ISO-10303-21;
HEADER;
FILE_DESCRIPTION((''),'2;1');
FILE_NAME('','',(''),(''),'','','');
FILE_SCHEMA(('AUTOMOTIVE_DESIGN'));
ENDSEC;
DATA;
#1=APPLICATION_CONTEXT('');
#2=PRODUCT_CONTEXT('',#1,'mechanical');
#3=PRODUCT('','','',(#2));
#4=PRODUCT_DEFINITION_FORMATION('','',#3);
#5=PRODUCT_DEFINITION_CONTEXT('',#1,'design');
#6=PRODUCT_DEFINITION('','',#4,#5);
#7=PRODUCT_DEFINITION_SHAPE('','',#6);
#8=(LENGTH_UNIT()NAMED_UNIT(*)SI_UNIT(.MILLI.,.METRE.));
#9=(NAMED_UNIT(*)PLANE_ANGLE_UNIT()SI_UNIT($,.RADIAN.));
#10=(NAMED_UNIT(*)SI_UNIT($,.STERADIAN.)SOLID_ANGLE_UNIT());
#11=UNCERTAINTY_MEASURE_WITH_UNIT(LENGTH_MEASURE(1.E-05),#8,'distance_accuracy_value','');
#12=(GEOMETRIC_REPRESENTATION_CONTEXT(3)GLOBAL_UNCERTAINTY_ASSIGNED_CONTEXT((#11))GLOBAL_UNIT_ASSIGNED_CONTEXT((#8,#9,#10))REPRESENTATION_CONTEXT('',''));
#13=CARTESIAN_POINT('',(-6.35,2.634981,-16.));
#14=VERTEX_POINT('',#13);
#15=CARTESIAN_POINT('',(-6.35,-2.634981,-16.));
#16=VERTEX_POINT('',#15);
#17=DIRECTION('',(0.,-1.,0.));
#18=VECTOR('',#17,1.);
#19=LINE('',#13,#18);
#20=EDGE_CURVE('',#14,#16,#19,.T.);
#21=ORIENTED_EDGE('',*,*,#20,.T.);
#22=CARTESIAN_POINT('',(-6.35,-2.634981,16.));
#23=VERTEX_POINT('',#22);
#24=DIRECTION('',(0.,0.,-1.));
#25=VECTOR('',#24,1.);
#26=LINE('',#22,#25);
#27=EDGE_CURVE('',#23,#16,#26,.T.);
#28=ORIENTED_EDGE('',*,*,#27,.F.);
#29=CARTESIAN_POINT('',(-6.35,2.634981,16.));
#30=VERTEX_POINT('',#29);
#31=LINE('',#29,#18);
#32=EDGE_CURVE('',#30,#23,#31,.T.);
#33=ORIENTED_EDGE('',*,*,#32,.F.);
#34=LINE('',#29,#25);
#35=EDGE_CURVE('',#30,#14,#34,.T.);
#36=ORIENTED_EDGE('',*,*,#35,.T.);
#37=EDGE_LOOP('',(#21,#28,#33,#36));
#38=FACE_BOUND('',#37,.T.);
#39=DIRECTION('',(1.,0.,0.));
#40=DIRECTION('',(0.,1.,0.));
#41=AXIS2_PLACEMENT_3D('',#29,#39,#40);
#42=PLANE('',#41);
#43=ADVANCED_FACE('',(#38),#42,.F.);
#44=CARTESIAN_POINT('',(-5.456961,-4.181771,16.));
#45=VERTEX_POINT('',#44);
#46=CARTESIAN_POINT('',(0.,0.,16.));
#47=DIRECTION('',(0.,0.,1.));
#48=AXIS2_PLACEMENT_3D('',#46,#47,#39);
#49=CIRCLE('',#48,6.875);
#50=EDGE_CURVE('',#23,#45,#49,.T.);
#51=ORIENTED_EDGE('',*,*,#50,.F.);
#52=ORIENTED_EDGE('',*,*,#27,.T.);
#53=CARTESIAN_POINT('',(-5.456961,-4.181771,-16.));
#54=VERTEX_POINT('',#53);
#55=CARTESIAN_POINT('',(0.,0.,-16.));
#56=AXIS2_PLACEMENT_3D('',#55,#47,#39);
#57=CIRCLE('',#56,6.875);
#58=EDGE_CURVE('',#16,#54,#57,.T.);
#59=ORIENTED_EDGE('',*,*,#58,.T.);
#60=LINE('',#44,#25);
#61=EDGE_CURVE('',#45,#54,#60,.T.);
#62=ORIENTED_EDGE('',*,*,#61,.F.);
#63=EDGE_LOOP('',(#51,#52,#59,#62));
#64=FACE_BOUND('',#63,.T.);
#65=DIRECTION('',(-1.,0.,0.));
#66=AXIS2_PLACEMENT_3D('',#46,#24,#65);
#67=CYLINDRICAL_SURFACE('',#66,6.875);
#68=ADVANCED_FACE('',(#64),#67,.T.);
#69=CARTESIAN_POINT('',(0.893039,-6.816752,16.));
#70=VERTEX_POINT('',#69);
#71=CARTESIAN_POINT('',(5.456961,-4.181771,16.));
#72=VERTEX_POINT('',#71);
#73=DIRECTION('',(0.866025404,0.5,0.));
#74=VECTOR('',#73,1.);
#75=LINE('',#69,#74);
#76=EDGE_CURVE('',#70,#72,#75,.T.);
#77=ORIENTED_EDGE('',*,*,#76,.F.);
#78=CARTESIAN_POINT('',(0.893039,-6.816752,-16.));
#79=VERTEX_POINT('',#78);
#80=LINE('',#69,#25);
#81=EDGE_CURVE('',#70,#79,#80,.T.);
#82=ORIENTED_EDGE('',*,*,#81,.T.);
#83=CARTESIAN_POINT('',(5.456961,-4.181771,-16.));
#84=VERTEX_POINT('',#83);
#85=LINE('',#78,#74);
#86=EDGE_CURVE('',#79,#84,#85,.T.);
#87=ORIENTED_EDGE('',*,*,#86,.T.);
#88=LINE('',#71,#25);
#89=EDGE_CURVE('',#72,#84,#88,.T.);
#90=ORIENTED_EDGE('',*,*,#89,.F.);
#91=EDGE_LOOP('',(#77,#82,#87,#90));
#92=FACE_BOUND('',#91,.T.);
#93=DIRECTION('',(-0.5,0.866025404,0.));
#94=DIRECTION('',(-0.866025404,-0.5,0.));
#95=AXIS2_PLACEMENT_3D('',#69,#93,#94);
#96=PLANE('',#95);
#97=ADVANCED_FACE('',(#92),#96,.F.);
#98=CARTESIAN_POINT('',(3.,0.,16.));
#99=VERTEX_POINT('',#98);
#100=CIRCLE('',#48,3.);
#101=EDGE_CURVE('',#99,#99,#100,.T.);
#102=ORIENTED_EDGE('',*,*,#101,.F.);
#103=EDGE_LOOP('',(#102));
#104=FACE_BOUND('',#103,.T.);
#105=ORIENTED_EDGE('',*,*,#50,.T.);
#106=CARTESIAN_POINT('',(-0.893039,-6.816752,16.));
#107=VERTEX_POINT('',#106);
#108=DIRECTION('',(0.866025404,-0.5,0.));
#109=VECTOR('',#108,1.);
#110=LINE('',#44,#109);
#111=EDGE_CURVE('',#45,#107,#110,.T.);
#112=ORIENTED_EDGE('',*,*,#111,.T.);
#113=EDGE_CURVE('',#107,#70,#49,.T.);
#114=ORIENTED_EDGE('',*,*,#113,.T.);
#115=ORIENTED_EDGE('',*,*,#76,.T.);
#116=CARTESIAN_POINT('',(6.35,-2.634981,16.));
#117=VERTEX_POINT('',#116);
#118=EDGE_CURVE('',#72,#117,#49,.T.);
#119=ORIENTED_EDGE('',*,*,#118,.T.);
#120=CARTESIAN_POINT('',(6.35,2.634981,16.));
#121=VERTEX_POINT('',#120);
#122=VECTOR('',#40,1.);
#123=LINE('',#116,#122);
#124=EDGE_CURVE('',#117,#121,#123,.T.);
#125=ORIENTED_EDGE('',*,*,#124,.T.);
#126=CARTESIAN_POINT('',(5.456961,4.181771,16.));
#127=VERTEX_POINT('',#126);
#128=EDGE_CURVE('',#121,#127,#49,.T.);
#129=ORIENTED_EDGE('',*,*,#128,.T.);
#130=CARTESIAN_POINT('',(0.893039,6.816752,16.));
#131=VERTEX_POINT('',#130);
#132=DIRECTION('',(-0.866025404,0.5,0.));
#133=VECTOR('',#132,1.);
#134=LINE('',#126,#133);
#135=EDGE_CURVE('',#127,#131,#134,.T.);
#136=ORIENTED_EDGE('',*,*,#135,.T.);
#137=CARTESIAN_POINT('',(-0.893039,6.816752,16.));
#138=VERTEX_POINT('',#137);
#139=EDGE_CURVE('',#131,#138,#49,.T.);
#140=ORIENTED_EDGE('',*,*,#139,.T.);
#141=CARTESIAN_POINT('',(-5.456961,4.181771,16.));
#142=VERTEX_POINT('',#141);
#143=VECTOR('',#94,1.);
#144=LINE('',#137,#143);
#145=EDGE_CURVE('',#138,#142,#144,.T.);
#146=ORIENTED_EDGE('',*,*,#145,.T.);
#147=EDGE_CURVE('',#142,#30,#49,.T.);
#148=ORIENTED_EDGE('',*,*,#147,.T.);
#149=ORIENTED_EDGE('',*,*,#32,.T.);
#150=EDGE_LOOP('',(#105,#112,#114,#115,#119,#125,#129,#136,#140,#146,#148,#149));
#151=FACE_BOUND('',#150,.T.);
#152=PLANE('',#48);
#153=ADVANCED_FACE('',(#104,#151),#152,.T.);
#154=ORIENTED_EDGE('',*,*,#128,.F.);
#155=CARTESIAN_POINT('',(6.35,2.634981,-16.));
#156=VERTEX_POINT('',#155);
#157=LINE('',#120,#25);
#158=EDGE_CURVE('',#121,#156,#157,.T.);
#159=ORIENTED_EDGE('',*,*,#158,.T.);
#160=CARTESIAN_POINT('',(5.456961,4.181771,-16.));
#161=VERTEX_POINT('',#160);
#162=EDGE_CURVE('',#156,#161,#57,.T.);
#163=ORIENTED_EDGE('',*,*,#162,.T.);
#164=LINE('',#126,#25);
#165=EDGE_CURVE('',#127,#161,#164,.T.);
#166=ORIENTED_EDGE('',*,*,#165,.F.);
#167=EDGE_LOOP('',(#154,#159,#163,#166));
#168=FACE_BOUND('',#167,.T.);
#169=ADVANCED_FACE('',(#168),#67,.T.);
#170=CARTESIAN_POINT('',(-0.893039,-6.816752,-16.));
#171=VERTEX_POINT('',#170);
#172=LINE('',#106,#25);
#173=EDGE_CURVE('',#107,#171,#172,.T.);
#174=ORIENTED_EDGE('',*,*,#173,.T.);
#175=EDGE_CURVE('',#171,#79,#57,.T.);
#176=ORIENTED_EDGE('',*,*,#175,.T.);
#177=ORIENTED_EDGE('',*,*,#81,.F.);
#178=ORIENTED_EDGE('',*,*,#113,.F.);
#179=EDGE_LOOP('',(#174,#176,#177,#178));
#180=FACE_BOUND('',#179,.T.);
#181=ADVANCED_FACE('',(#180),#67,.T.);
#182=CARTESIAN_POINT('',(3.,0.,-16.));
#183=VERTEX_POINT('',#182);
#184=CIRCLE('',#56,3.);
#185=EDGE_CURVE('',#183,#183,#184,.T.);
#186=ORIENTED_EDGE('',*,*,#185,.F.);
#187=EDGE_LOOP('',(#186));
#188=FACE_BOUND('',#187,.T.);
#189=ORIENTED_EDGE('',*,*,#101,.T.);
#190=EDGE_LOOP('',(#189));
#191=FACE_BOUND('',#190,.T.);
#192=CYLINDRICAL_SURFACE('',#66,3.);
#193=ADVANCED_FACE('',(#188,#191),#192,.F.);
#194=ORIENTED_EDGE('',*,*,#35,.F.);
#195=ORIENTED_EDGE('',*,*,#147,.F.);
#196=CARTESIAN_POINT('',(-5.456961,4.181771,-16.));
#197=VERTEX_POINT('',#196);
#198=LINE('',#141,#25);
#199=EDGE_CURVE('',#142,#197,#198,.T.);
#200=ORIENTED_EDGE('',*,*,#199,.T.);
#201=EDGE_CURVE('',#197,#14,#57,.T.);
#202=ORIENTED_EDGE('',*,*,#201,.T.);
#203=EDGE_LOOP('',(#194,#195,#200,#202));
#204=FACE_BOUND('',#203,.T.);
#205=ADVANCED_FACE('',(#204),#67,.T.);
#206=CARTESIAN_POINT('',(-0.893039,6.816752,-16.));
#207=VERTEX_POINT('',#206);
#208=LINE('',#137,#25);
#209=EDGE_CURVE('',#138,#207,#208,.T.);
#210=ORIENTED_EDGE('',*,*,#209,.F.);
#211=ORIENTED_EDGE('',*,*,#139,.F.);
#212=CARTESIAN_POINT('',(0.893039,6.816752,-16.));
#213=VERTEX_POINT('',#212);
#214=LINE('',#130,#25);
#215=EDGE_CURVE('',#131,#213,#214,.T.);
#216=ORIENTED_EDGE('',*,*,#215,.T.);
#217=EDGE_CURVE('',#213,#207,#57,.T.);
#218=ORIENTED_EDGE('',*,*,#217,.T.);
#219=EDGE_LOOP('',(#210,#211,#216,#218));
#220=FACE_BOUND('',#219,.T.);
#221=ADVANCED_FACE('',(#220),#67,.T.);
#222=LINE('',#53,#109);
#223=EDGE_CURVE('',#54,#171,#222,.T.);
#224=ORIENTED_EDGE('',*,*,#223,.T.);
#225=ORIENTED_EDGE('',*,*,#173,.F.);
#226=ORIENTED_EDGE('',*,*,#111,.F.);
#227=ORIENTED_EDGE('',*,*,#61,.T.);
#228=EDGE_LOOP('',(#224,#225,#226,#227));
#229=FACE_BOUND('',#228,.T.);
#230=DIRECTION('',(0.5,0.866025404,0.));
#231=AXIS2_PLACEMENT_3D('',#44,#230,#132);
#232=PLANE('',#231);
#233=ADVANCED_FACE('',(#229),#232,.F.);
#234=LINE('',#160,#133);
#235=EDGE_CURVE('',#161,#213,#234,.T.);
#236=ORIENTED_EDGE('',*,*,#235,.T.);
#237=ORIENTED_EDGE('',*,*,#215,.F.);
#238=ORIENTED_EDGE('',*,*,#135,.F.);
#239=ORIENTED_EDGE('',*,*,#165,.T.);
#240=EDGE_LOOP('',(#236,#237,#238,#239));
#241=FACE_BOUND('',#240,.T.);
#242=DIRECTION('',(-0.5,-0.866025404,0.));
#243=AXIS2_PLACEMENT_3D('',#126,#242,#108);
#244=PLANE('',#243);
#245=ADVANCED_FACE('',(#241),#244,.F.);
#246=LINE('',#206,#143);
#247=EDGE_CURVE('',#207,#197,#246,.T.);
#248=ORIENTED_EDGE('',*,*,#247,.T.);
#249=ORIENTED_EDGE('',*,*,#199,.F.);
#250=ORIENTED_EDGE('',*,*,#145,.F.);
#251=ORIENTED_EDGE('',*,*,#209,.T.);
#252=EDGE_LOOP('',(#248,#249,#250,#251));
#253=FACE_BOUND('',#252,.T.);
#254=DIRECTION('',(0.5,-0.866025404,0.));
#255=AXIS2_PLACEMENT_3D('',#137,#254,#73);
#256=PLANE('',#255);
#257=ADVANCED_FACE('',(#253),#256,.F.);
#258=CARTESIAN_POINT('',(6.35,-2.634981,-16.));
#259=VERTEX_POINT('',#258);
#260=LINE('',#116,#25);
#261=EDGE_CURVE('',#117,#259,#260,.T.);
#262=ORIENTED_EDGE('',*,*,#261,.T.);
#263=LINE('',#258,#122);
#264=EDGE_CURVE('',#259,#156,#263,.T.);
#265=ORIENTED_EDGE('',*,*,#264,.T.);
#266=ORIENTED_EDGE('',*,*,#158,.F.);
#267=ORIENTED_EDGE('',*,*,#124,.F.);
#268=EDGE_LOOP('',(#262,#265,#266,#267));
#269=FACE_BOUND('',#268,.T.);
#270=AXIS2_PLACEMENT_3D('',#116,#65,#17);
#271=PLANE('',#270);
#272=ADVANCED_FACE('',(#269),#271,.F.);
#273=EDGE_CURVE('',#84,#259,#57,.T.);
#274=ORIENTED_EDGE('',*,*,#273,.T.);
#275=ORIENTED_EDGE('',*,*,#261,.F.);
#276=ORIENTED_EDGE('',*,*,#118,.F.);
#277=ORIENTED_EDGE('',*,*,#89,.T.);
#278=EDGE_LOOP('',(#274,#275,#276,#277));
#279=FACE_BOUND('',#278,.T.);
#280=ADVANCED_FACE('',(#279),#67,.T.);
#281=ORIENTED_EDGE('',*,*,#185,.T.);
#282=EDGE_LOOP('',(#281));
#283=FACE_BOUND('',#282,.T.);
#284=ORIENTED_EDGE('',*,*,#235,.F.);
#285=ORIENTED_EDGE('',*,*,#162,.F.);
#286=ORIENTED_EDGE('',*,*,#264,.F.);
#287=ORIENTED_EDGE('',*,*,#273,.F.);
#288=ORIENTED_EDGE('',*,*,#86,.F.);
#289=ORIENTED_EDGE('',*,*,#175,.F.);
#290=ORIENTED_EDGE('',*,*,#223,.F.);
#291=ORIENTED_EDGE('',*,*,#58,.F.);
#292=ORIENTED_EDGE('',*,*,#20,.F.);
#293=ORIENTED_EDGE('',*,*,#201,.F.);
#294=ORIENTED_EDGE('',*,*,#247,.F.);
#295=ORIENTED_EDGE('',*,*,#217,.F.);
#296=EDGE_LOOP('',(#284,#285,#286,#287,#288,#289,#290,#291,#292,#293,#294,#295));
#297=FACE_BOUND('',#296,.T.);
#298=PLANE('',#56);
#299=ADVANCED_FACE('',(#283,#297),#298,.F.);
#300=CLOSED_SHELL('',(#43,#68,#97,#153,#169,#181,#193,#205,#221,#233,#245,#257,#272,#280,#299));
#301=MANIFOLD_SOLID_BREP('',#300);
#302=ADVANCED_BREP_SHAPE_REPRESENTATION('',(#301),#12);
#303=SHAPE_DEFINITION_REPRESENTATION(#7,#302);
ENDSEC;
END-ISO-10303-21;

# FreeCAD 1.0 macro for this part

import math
import FreeCAD as App
import Part
import Sketcher
Q = App.Units.Quantity

doc = App.newDocument("Part")
body = doc.addObject("PartDesign::Body", "Body")

# Sketch on XY plane
sketch1 = body.newObject("Sketcher::SketchObject", "Sketch")
sketch1.AttachmentSupport = (doc.getObject("XY_Plane"), [""])
sketch1.MapMode = "FlatFace"
sketch1.addGeometry(Part.LineSegment(App.Vector(-0.893039, 6.816752, 0), App.Vector(-5.456961, 4.181771, 0)), False)
sketch1.addGeometry(Part.ArcOfCircle(Part.Circle(App.Vector(0, 0, 0), App.Vector(0, 0, 1), 6.875), math.radians(142.53638), math.radians(157.46362)), False)
sketch1.addGeometry(Part.LineSegment(App.Vector(-6.35, 2.634981, 0), App.Vector(-6.35, -2.634981, 0)), False)
sketch1.addGeometry(Part.ArcOfCircle(Part.Circle(App.Vector(0, 0, 0), App.Vector(0, 0, 1), 6.875), math.radians(-157.46362), math.radians(-142.53638)), False)
sketch1.addGeometry(Part.LineSegment(App.Vector(-5.456961, -4.181771, 0), App.Vector(-0.893039, -6.816752, 0)), False)
sketch1.addGeometry(Part.ArcOfCircle(Part.Circle(App.Vector(0, 0, 0), App.Vector(0, 0, 1), 6.875), math.radians(-97.46362), math.radians(-82.53638)), False)
sketch1.addGeometry(Part.LineSegment(App.Vector(0.893039, -6.816752, 0), App.Vector(5.456961, -4.181771, 0)), False)
sketch1.addGeometry(Part.ArcOfCircle(Part.Circle(App.Vector(0, 0, 0), App.Vector(0, 0, 1), 6.875), math.radians(-37.46362), math.radians(-22.53638)), False)
sketch1.addGeometry(Part.LineSegment(App.Vector(6.35, -2.634981, 0), App.Vector(6.35, 2.634981, 0)), False)
sketch1.addGeometry(Part.ArcOfCircle(Part.Circle(App.Vector(0, 0, 0), App.Vector(0, 0, 1), 6.875), math.radians(22.53638), math.radians(37.46362)), False)
sketch1.addGeometry(Part.LineSegment(App.Vector(5.456961, 4.181771, 0), App.Vector(0.893039, 6.816752, 0)), False)
sketch1.addGeometry(Part.ArcOfCircle(Part.Circle(App.Vector(0, 0, 0), App.Vector(0, 0, 1), 6.875), math.radians(82.53638), math.radians(97.46362)), False)
sketch1.addGeometry(Part.Circle(App.Vector(0, 0, 0), App.Vector(0, 0, 1), 3), False)
sketch1.addConstraint(Sketcher.Constraint("Coincident", 0, 2, 1, 1))
sketch1.addConstraint(Sketcher.Constraint("Coincident", 1, 2, 2, 1))
sketch1.addConstraint(Sketcher.Constraint("Coincident", 2, 2, 3, 1))
sketch1.addConstraint(Sketcher.Constraint("Coincident", 3, 2, 4, 1))
sketch1.addConstraint(Sketcher.Constraint("Coincident", 4, 2, 5, 1))
sketch1.addConstraint(Sketcher.Constraint("Coincident", 5, 2, 6, 1))
sketch1.addConstraint(Sketcher.Constraint("Coincident", 6, 2, 7, 1))
sketch1.addConstraint(Sketcher.Constraint("Coincident", 7, 2, 8, 1))
sketch1.addConstraint(Sketcher.Constraint("Coincident", 8, 2, 9, 1))
sketch1.addConstraint(Sketcher.Constraint("Coincident", 9, 2, 10, 1))
sketch1.addConstraint(Sketcher.Constraint("Coincident", 10, 2, 11, 1))
sketch1.addConstraint(Sketcher.Constraint("Coincident", 11, 2, 0, 1))
sketch1.addConstraint(Sketcher.Constraint("Vertical", 2))
sketch1.addConstraint(Sketcher.Constraint("Vertical", 8))
sketch1.addConstraint(Sketcher.Constraint("Coincident", 1, 3, -1, 1))
sketch1.addConstraint(Sketcher.Constraint("Coincident", 3, 3, -1, 1))
sketch1.addConstraint(Sketcher.Constraint("Coincident", 5, 3, -1, 1))
sketch1.addConstraint(Sketcher.Constraint("Coincident", 7, 3, -1, 1))
sketch1.addConstraint(Sketcher.Constraint("Coincident", 9, 3, -1, 1))
sketch1.addConstraint(Sketcher.Constraint("Coincident", 11, 3, -1, 1))
sketch1.addConstraint(Sketcher.Constraint("Coincident", 12, 3, -1, 1))
sketch1.addConstraint(Sketcher.Constraint("Equal", 1, 3))
sketch1.addConstraint(Sketcher.Constraint("Equal", 3, 5))
sketch1.addConstraint(Sketcher.Constraint("Equal", 5, 7))
sketch1.addConstraint(Sketcher.Constraint("Equal", 7, 9))
sketch1.addConstraint(Sketcher.Constraint("Equal", 9, 11))
sketch1.addConstraint(Sketcher.Constraint("Parallel", 0, 6))
sketch1.addConstraint(Sketcher.Constraint("Parallel", 4, 10))
sketch1.addConstraint(Sketcher.Constraint("Horizontal", 4, 2, 5, 2))
sketch1.addConstraint(Sketcher.Constraint("Horizontal", 3, 2, 6, 2))
sketch1.addConstraint(Sketcher.Constraint("Horizontal", 2, 2, 7, 2))
sketch1.addConstraint(Sketcher.Constraint("Horizontal", 0, 2, 9, 2))
sketch1.addConstraint(Sketcher.Constraint("Vertical", 0, 2, 3, 2))
sketch1.addConstraint(Sketcher.Constraint("Diameter", 12, Q("6 mm")))
sketch1.addConstraint(Sketcher.Constraint("Angle", 0, Q("-150 deg")))
sketch1.addConstraint(Sketcher.Constraint("Radius", 1, Q("6.875 mm")))
sketch1.addConstraint(Sketcher.Constraint("DistanceX", 1, 2, -1, 1, Q("6.35 mm")))
sketch1.addConstraint(Sketcher.Constraint("DistanceX", 3, 2, 5, 2, Q("6.35 mm")))
pad1 = body.newObject("PartDesign::Pad", "Pad")
pad1.Profile = sketch1
pad1.Length = 32
pad1.Midplane = True

doc.recompute()
